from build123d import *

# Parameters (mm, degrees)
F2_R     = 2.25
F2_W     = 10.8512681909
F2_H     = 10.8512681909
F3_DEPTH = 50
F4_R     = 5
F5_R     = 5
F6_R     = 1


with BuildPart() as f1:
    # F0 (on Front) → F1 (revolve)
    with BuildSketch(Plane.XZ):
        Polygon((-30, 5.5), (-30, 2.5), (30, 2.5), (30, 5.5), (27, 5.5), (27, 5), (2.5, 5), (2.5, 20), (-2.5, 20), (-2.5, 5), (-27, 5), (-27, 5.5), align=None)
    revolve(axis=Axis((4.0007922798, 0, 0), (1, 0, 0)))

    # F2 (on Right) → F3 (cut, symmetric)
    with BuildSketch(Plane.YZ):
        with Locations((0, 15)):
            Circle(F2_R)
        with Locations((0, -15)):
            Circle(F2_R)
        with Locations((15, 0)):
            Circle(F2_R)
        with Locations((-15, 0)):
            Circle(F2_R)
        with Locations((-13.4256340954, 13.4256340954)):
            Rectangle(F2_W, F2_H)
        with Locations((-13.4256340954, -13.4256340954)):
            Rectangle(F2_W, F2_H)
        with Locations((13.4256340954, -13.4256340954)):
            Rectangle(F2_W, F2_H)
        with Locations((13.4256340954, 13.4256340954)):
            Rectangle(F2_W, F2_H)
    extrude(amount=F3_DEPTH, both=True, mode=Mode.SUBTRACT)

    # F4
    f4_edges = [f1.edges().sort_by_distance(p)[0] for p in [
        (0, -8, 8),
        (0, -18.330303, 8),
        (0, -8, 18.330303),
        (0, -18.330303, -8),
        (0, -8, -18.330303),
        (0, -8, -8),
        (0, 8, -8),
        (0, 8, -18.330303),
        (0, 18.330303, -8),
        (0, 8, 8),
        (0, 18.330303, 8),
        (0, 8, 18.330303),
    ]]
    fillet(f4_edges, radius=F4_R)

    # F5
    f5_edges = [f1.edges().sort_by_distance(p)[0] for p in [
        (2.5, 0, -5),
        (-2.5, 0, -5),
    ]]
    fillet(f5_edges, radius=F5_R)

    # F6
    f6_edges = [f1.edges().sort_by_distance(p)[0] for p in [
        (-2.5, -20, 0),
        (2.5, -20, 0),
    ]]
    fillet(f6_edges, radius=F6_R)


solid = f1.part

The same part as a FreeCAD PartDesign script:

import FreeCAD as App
import Part
import Sketcher
from FreeCAD import Vector
Q = App.Units.Quantity


def edges_at(feature, points):
    """Names of the edges that pass closest to the given points."""
    edges = feature.Shape.Edges
    near = lambda p: min(range(len(edges)), key=lambda i: edges[i].distToShape(Part.Vertex(*p))[0])
    return sorted({f"Edge{near(p) + 1}" for p in points})


def add_polygon(sketch, points):
    """Adds a closed chain of lines whose ends are joined by coincident constraints."""
    first, n = sketch.GeometryCount, len(points)
    for a, b in zip(points, points[1:] + points[:1]):
        sketch.addGeometry(Part.LineSegment(App.Vector(*a, 0), App.Vector(*b, 0)), False)
    for i in range(n):
        sketch.addConstraint(Sketcher.Constraint("Coincident", first + i, 2, first + (i + 1) % n, 1))

doc = App.newDocument("Part")
params = doc.addObject("Spreadsheet::Sheet", "Params")
for row, (alias, value) in enumerate([
    ("sketch1_width", "60 mm"),
    ("sketch1_width2", "3 mm"),
    ("sketch1_width3", "5 mm"),
    ("sketch1_height", "15 mm"),
    ("sketch1_height2", "0.5 mm"),
    ("revolution_angle", "360 deg"),
    ("sketch2_diameter", "4.5 mm"),
    ("pocket1_length", "100 mm"),
    ("fillet_radius", "5 mm"),
    ("fillet2_radius", "5 mm"),
    ("fillet3_radius", "1 mm"),
], start=1):
    params.set(f"A{row}", alias)
    params.set(f"B{row}", "=" + value)
    params.setAlias(f"B{row}", alias)

body = doc.addObject("PartDesign::Body", "Body")

# Sketch on XZ plane
sketch1 = body.newObject("Sketcher::SketchObject", "Sketch")
sketch1.AttachmentSupport = (doc.getObject("XZ_Plane"), [""])
sketch1.MapMode = "FlatFace"
add_polygon(sketch1, [(-30, 5.5), (-30, 2.5), (30, 2.5), (30, 5.5), (27, 5.5), (27, 5), (2.5, 5), (2.5, 20), (-2.5, 20), (-2.5, 5), (-27, 5), (-27, 5.5)])  # lines 0-11
sketch1.addConstraint([
    Sketcher.Constraint("Vertical", 0),
    Sketcher.Constraint("Horizontal", 1),
    Sketcher.Constraint("Vertical", 2),
    Sketcher.Constraint("Horizontal", 3),
    Sketcher.Constraint("Vertical", 4),
    Sketcher.Constraint("Horizontal", 5),
    Sketcher.Constraint("Vertical", 6),
    Sketcher.Constraint("Horizontal", 7),
    Sketcher.Constraint("Vertical", 8),
    Sketcher.Constraint("Horizontal", 9),
    Sketcher.Constraint("Vertical", 10),
    Sketcher.Constraint("Horizontal", 11),
    Sketcher.Constraint("Symmetric", 5, 2, 8, 2, -2),
    Sketcher.Constraint("Symmetric", 3, 2, 10, 2, -2),
    Sketcher.Constraint("Equal", 3, 11),
    Sketcher.Constraint("Equal", 11, 0),
    Sketcher.Constraint("DistanceX", 1, 1, 1, 2, Q("60 mm")),
    Sketcher.Constraint("DistanceX", 3, 2, 3, 1, Q("3 mm")),
    Sketcher.Constraint("DistanceX", 7, 2, 7, 1, Q("5 mm")),
    Sketcher.Constraint("DistanceY", 6, 1, 6, 2, Q("15 mm")),
    Sketcher.Constraint("DistanceY", 4, 2, 4, 1, Q("0.5 mm")),
    Sketcher.Constraint("DistanceY", -1, 1, 4, 2, Q("5 mm")),
])
sketch1.setExpression("Constraints[28]", "Params.sketch1_width")
sketch1.setExpression("Constraints[29]", "Params.sketch1_width2")
sketch1.setExpression("Constraints[30]", "Params.sketch1_width3")
sketch1.setExpression("Constraints[31]", "Params.sketch1_height")
sketch1.setExpression("Constraints[32]", "Params.sketch1_height2")
revolution = body.newObject("PartDesign::Revolution", "Revolution")
revolution.Profile = sketch1
revolution.ReferenceAxis = (sketch1, ["H_Axis"])
revolution.setExpression("Angle", "Params.revolution_angle")

# Sketch on YZ plane
sketch2 = body.newObject("Sketcher::SketchObject", "Sketch001")
sketch2.AttachmentSupport = (doc.getObject("YZ_Plane"), [""])
sketch2.MapMode = "FlatFace"
sketch2.addGeometry(Part.Circle(Vector(0, 15, 0), Vector(0, 0, 1), 2.25), False)  # 0
sketch2.addGeometry(Part.Circle(Vector(0, -15, 0), Vector(0, 0, 1), 2.25), False)  # 1
sketch2.addGeometry(Part.Circle(Vector(15, 0, 0), Vector(0, 0, 1), 2.25), False)  # 2
sketch2.addGeometry(Part.Circle(Vector(-15, 0, 0), Vector(0, 0, 1), 2.25), False)  # 3
add_polygon(sketch2, [(-18.851268, 18.851268), (-18.851268, 8), (-8, 8), (-8, 18.851268)])  # lines 4-7
add_polygon(sketch2, [(-18.851268, -8), (-18.851268, -18.851268), (-8, -18.851268), (-8, -8)])  # lines 8-11
add_polygon(sketch2, [(8, -8), (8, -18.851268), (18.851268, -18.851268), (18.851268, -8)])  # lines 12-15
add_polygon(sketch2, [(8, 18.851268), (8, 8), (18.851268, 8), (18.851268, 18.851268)])  # lines 16-19
sketch2.addConstraint([
    Sketcher.Constraint("Vertical", 4),
    Sketcher.Constraint("Horizontal", 5),
    Sketcher.Constraint("Vertical", 6),
    Sketcher.Constraint("Horizontal", 7),
    Sketcher.Constraint("Vertical", 8),
    Sketcher.Constraint("Horizontal", 9),
    Sketcher.Constraint("Vertical", 10),
    Sketcher.Constraint("Horizontal", 11),
    Sketcher.Constraint("Vertical", 12),
    Sketcher.Constraint("Horizontal", 13),
    Sketcher.Constraint("Vertical", 14),
    Sketcher.Constraint("Horizontal", 15),
    Sketcher.Constraint("Vertical", 16),
    Sketcher.Constraint("Horizontal", 17),
    Sketcher.Constraint("Vertical", 18),
    Sketcher.Constraint("Horizontal", 19),
    Sketcher.Constraint("Equal", 0, 1),
    Sketcher.Constraint("Equal", 1, 2),
    Sketcher.Constraint("Equal", 2, 3),
    Sketcher.Constraint("Symmetric", 0, 3, 1, 3, -1, 1),
    Sketcher.Constraint("Symmetric", 2, 3, 3, 3, -1, 1),
    Sketcher.Constraint("Symmetric", 6, 2, 12, 2, -1, 1),
    Sketcher.Constraint("Symmetric", 4, 2, 14, 2, -1, 1),
    Sketcher.Constraint("Symmetric", 10, 2, 16, 2, -1, 1),
    Sketcher.Constraint("Symmetric", 8, 2, 18, 2, -1, 1),
    Sketcher.Constraint("Symmetric", 9, 2, 12, 2, -2),
    Sketcher.Constraint("Symmetric", 11, 2, 14, 2, -2),
    Sketcher.Constraint("PointOnObject", 0, 3, -2),
    Sketcher.Constraint("PointOnObject", 2, 3, -1),
    Sketcher.Constraint("Equal", 19, 4),
    Sketcher.Constraint("Diameter", 0, Q("4.5 mm")),
    Sketcher.Constraint("DistanceY", -1, 1, 0, 3, Q("15 mm")),
    Sketcher.Constraint("DistanceX", -1, 1, 2, 3, Q("15 mm")),
    Sketcher.Constraint("DistanceY", -1, 1, 4, 2, Q("8 mm")),
    Sketcher.Constraint("DistanceX", 5, 2, -1, 1, Q("8 mm")),
    Sketcher.Constraint("DistanceX", 5, 1, 5, 2, Q("10.851268 mm")),
])
sketch2.setExpression("Constraints[46]", "Params.sketch2_diameter")
pocket1 = body.newObject("PartDesign::Pocket", "Pocket")
pocket1.Profile = sketch2
pocket1.setExpression("Length", "Params.pocket1_length")
pocket1.Midplane = True
doc.recompute()

fillet = body.newObject("PartDesign::Fillet", "Fillet")
fillet.Base = (pocket1, edges_at(pocket1, [
    (0, -8, 8),
    (0, -18.33, 8),
    (0, -8, 18.33),
    (0, -18.33, -8),
    (0, -8, -18.33),
    (0, -8, -8),
    (0, 8, -8),
    (0, 8, -18.33),
    (0, 18.33, -8),
    (0, 8, 8),
    (0, 18.33, 8),
    (0, 8, 18.33),
]))
fillet.setExpression("Radius", "Params.fillet_radius")
doc.recompute()

fillet2 = body.newObject("PartDesign::Fillet", "Fillet001")
fillet2.Base = (fillet, edges_at(fillet, [(2.5, 0, -5), (-2.5, 0, -5)]))
fillet2.setExpression("Radius", "Params.fillet2_radius")
doc.recompute()

fillet3 = body.newObject("PartDesign::Fillet", "Fillet002")
fillet3.Base = (fillet2, edges_at(fillet2, [(-2.5, -20, 0), (2.5, -20, 0)]))
fillet3.setExpression("Radius", "Params.fillet3_radius")

doc.recompute()
